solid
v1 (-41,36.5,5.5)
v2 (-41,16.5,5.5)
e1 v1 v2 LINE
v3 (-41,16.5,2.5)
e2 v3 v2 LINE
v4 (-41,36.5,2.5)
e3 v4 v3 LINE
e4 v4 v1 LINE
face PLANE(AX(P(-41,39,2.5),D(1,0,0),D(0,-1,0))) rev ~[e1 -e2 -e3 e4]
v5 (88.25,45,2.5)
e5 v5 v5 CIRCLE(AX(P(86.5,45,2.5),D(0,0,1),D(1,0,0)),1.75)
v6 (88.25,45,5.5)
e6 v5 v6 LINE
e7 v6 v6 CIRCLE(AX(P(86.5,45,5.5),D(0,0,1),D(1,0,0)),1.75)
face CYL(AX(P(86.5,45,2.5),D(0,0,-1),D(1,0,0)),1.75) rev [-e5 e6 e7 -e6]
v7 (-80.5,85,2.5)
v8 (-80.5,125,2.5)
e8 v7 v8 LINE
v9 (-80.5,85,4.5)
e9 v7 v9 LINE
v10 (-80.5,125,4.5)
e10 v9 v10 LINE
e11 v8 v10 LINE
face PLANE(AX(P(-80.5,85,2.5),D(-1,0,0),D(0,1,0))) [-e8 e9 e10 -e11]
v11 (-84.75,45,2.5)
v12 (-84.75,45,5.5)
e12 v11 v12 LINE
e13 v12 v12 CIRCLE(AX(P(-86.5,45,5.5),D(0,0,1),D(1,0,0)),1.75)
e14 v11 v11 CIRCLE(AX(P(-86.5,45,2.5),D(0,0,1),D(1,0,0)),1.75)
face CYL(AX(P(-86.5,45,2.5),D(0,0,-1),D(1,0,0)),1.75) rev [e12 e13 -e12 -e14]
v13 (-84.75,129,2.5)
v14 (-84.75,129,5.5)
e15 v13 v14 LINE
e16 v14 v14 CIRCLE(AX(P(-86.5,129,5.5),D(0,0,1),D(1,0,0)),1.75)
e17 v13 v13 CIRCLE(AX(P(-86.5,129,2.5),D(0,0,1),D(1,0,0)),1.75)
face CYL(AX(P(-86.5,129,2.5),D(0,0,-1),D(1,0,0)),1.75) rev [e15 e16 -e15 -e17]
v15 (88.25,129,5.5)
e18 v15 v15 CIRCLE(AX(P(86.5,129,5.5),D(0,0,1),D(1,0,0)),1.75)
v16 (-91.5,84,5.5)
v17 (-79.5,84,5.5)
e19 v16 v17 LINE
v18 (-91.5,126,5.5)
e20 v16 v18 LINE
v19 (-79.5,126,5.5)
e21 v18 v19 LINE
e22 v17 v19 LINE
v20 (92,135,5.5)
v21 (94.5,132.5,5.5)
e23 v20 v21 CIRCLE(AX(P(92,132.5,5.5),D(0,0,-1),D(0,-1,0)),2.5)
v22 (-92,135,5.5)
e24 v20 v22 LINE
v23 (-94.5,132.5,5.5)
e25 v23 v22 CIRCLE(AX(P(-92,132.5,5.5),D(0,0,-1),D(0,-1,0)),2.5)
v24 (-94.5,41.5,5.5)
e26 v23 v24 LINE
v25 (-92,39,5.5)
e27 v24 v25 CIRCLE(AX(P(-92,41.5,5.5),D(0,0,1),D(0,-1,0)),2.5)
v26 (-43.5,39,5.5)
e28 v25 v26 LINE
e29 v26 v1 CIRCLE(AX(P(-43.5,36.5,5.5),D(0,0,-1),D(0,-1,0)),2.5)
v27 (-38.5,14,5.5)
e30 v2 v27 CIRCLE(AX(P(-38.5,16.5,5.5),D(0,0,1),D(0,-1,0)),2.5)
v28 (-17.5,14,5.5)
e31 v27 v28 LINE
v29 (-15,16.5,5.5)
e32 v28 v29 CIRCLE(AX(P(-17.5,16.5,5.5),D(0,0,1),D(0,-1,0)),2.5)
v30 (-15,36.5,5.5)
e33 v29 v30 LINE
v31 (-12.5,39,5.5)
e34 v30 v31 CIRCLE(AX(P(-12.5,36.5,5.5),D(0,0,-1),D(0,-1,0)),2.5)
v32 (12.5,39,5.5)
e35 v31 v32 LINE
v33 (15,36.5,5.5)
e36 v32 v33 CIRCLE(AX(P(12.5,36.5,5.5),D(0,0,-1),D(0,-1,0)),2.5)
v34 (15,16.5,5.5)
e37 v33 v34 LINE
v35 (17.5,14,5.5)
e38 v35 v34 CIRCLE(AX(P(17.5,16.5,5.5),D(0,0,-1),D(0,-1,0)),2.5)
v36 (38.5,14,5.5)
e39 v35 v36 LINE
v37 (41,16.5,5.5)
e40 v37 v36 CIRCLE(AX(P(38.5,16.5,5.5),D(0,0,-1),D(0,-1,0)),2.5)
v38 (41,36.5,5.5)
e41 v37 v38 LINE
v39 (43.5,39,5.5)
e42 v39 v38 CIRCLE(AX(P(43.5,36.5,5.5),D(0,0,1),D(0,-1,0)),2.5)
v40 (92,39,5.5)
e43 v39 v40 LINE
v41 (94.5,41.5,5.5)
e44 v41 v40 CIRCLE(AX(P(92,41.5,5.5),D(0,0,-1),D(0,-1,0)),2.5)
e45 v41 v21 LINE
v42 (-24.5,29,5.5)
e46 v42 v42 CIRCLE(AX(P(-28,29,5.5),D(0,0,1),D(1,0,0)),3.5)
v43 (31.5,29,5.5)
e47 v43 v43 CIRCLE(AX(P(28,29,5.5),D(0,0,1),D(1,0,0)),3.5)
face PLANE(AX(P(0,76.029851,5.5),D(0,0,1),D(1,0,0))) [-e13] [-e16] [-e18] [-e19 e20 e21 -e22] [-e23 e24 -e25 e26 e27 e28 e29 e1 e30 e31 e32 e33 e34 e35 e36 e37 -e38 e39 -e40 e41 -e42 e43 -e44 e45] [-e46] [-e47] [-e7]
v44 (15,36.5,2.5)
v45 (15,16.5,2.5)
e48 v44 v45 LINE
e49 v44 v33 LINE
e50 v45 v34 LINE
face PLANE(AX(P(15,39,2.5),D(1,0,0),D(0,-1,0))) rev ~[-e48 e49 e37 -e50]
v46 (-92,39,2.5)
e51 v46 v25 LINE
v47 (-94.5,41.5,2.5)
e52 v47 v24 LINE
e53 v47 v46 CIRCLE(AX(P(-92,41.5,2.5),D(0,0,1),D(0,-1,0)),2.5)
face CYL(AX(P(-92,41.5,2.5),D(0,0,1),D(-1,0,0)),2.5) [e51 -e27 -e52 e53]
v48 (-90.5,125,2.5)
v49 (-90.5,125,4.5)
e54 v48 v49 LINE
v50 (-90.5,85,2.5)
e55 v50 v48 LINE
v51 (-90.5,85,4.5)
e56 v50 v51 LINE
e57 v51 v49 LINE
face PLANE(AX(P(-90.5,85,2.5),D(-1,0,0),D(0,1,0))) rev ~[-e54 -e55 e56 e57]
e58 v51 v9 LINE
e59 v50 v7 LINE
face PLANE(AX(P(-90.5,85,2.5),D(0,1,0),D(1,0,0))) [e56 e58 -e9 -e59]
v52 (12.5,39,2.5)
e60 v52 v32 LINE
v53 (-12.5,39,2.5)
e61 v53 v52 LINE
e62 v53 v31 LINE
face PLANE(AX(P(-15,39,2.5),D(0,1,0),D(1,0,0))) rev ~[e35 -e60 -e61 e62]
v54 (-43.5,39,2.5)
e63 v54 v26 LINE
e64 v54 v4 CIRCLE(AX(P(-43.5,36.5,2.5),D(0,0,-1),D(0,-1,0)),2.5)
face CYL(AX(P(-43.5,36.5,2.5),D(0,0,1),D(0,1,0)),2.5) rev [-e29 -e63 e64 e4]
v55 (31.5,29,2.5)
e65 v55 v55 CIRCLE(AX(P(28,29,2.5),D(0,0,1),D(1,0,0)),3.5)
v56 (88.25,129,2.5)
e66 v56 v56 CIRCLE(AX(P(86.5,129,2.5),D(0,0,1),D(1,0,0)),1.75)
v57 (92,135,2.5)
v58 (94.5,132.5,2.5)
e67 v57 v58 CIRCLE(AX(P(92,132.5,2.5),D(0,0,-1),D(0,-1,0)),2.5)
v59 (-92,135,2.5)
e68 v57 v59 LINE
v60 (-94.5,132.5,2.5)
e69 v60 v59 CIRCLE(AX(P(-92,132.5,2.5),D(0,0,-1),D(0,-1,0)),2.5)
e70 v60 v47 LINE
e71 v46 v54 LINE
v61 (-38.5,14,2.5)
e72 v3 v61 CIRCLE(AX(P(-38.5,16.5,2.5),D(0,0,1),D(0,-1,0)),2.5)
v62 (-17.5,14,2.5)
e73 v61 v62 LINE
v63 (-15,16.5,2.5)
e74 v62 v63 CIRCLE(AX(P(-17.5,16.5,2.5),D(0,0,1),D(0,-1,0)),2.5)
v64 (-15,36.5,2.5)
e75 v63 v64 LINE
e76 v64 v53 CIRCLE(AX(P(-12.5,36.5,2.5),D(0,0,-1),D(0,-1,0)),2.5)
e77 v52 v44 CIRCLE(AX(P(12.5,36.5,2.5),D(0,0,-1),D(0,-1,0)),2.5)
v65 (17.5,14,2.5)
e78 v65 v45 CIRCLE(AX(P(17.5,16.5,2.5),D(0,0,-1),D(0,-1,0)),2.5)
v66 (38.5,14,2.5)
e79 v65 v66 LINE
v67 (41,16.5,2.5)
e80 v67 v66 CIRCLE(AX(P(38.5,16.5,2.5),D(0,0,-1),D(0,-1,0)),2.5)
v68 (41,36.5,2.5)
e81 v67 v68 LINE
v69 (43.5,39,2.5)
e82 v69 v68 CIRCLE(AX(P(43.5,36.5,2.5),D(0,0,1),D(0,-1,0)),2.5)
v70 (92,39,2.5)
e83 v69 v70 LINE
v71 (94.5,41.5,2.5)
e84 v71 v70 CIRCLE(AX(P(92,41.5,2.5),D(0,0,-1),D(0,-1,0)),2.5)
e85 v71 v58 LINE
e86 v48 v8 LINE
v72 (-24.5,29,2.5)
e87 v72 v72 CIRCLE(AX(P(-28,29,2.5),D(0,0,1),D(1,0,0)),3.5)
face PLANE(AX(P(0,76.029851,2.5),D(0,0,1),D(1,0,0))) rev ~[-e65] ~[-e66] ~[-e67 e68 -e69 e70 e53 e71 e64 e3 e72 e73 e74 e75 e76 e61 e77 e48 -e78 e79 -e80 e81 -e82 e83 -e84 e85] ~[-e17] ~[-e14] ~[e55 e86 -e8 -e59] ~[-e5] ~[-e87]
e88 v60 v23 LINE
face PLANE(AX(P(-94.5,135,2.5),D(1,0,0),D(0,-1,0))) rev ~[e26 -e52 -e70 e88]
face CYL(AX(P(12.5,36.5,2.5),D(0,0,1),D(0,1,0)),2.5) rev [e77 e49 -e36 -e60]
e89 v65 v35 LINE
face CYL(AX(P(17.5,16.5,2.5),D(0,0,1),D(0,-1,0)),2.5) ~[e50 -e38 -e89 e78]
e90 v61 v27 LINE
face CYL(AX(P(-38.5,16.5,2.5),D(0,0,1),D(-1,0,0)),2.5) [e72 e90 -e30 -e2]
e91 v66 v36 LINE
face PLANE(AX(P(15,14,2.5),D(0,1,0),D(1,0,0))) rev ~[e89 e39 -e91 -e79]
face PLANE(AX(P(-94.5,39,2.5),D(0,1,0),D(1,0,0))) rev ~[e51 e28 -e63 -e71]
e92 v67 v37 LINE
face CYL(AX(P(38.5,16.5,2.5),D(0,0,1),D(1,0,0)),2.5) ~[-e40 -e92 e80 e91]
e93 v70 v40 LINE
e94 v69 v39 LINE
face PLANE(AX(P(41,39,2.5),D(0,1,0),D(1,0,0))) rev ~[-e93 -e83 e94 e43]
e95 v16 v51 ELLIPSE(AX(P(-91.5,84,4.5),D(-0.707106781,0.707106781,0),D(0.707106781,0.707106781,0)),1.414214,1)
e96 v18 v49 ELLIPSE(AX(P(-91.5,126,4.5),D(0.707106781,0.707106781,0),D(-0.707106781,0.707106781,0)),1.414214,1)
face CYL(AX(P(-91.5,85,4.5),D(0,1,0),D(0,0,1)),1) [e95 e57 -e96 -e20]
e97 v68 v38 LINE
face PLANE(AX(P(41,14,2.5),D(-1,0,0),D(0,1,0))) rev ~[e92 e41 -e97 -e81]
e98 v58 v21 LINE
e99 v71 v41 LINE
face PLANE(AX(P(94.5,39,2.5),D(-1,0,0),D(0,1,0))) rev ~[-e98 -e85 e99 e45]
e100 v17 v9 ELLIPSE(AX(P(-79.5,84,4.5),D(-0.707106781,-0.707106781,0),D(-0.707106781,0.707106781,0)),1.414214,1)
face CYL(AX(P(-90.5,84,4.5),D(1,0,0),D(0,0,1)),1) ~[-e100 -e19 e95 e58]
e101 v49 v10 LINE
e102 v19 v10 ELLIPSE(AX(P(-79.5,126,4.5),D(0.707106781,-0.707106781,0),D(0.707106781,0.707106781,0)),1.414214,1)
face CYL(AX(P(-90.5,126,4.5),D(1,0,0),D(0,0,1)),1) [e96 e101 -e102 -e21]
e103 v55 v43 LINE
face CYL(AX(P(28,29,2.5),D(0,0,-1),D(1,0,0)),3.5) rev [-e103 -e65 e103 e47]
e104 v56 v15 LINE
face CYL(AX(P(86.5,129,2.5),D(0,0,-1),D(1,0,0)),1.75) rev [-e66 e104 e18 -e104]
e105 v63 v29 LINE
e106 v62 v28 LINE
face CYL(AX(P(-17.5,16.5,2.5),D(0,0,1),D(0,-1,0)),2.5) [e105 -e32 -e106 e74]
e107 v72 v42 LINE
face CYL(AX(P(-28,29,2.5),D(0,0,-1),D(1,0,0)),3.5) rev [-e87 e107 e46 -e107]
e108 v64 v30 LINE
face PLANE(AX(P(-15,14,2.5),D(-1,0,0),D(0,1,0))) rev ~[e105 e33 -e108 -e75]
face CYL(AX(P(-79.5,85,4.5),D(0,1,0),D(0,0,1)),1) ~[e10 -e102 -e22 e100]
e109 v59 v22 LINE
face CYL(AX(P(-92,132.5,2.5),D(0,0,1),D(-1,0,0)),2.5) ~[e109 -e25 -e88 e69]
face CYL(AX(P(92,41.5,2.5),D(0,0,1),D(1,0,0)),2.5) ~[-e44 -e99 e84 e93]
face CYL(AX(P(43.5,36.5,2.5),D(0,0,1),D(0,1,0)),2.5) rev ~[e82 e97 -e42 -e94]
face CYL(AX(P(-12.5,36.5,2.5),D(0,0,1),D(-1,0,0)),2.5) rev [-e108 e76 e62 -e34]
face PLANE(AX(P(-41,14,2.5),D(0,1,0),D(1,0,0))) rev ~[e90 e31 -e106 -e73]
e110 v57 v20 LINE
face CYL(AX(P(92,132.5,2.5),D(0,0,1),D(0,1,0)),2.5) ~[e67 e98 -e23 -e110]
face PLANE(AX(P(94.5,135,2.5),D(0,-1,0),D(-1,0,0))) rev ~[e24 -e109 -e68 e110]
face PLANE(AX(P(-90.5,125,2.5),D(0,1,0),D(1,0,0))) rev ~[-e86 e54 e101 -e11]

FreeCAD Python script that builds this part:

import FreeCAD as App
import Part
import Sketcher

V = App.Vector
Q = App.Units.Quantity


def edges_at(feature, points):
    """Names of the edges that pass closest to the given points."""
    edges = feature.Shape.Edges
    near = lambda p: min(range(len(edges)), key=lambda i: edges[i].distToShape(Part.Vertex(*p))[0])
    return sorted({f"Edge{near(p) + 1}" for p in points})


def add_polygon(sketch, points):
    """Adds a closed chain of lines whose ends are joined by coincident constraints."""
    first, n = sketch.GeometryCount, len(points)
    for a, b in zip(points, points[1:] + points[:1]):
        sketch.addGeometry(Part.LineSegment(App.Vector(*a, 0), App.Vector(*b, 0)), False)
    for i in range(n):
        sketch.addConstraint(Sketcher.Constraint("Coincident", first + i, 2, first + (i + 1) % n, 1))

doc = App.newDocument("Part")
params = doc.addObject("Spreadsheet::Sheet", "Params")
for row, (alias, value) in enumerate([
    ("sketch1_diameter", "7 mm"),
    ("sketch1_diameter2", "3.5 mm"),
    ("sketch1_width", "26 mm"),
    ("sketch1_width2", "30 mm"),
    ("sketch1_width3", "189 mm"),
    ("pad1_length", "3 mm"),
    ("fillet_radius", "2.5 mm"),
    ("fillet2_radius", "1 mm"),
], start=1):
    params.set(f"A{row}", alias)
    params.set(f"B{row}", "=" + value)
    params.setAlias(f"B{row}", alias)

body = doc.addObject("PartDesign::Body", "Body")

# Sketch on XY plane
sketch1 = body.newObject("Sketcher::SketchObject", "Sketch")
sketch1.AttachmentSupport = (doc.getObject("XY_Plane"), [""])
sketch1.MapMode = "FlatFace"
add_polygon(sketch1, [(-94.5, 48), (-94.5, -48), (-41, -48), (-41, -73), (-15, -73), (-15, -48), (15, -48), (15, -73), (41, -73), (41, -48), (94.5, -48), (94.5, 48)])  # lines 0-11
sketch1.addGeometry(Part.Circle(V(-86.5, -42, 0), V(0, 0, 1), 1.8), False)  # 12
sketch1.addGeometry(Part.Circle(V(-28, -58, 0), V(0, 0, 1), 3.5), False)  # 13
sketch1.addGeometry(Part.Circle(V(28, -58, 0), V(0, 0, 1), 3.5), False)  # 14
sketch1.addGeometry(Part.Circle(V(86.5, -42, 0), V(0, 0, 1), 1.8), False)  # 15
add_polygon(sketch1, [(-80.5, -2), (-90.5, -2), (-90.5, 38), (-80.5, 38)])  # lines 16-19
sketch1.addGeometry(Part.Circle(V(-86.5, 42, 0), V(0, 0, 1), 1.8), False)  # 20
sketch1.addGeometry(Part.Circle(V(86.5, 42, 0), V(0, 0, 1), 1.8), False)  # 21
sketch1.addConstraint(Sketcher.Constraint("Vertical", 0))
sketch1.addConstraint(Sketcher.Constraint("Horizontal", 1))
sketch1.addConstraint(Sketcher.Constraint("Vertical", 2))
sketch1.addConstraint(Sketcher.Constraint("Horizontal", 3))
sketch1.addConstraint(Sketcher.Constraint("Vertical", 4))
sketch1.addConstraint(Sketcher.Constraint("Horizontal", 5))
sketch1.addConstraint(Sketcher.Constraint("Vertical", 6))
sketch1.addConstraint(Sketcher.Constraint("Horizontal", 7))
sketch1.addConstraint(Sketcher.Constraint("Vertical", 8))
sketch1.addConstraint(Sketcher.Constraint("Horizontal", 9))
sketch1.addConstraint(Sketcher.Constraint("Vertical", 10))
sketch1.addConstraint(Sketcher.Constraint("Horizontal", 11))
sketch1.addConstraint(Sketcher.Constraint("Horizontal", 16))
sketch1.addConstraint(Sketcher.Constraint("Vertical", 17))
sketch1.addConstraint(Sketcher.Constraint("Horizontal", 18))
sketch1.addConstraint(Sketcher.Constraint("Vertical", 19))
sketch1.addConstraint(Sketcher.Constraint("Equal", 13, 14))
sketch1.addConstraint(Sketcher.Constraint("Equal", 12, 15))
sketch1.addConstraint(Sketcher.Constraint("Equal", 15, 20))
sketch1.addConstraint(Sketcher.Constraint("Equal", 20, 21))
sketch1.addConstraint(Sketcher.Constraint("Symmetric", 15, 3, 20, 3, -1, 1))
sketch1.addConstraint(Sketcher.Constraint("Symmetric", 12, 3, 21, 3, -1, 1))
sketch1.addConstraint(Sketcher.Constraint("Symmetric", 0, 2, 10, 2, -1, 1))
sketch1.addConstraint(Sketcher.Constraint("Symmetric", 13, 3, 14, 3, -2))
sketch1.addConstraint(Sketcher.Constraint("Symmetric", 12, 3, 15, 3, -2))
sketch1.addConstraint(Sketcher.Constraint("Symmetric", 3, 2, 6, 2, -2))
sketch1.addConstraint(Sketcher.Constraint("Symmetric", 1, 2, 8, 2, -2))
sketch1.addConstraint(Sketcher.Constraint("Horizontal", 1, 2, 4, 2))
sketch1.addConstraint(Sketcher.Constraint("Diameter", 13, Q("7 mm")))
sketch1.addConstraint(Sketcher.Constraint("Diameter", 12, Q("3.5 mm")))
sketch1.addConstraint(Sketcher.Constraint("DistanceX", 3, 1, 3, 2, Q("26 mm")))
sketch1.addConstraint(Sketcher.Constraint("DistanceX", 5, 1, 5, 2, Q("30 mm")))
sketch1.addConstraint(Sketcher.Constraint("DistanceX", 11, 2, 11, 1, Q("189 mm")))
sketch1.addConstraint(Sketcher.Constraint("DistanceX", 16, 2, 16, 1, Q("10 mm")))
sketch1.addConstraint(Sketcher.Constraint("DistanceY", 0, 2, 0, 1, Q("96 mm")))
sketch1.addConstraint(Sketcher.Constraint("DistanceY", 2, 2, 2, 1, Q("25 mm")))
sketch1.addConstraint(Sketcher.Constraint("DistanceY", 17, 1, 17, 2, Q("40 mm")))
sketch1.addConstraint(Sketcher.Constraint("DistanceY", 12, 3, -1, 1, Q("42 mm")))
sketch1.addConstraint(Sketcher.Constraint("DistanceX", 13, 3, -1, 1, Q("28 mm")))
sketch1.addConstraint(Sketcher.Constraint("DistanceY", 13, 3, -1, 1, Q("58 mm")))
sketch1.addConstraint(Sketcher.Constraint("DistanceY", 16, 2, -1, 1, Q("2 mm")))
sketch1.addConstraint(Sketcher.Constraint("DistanceX", 12, 3, 15, 3, Q("173 mm")))
sketch1.addConstraint(Sketcher.Constraint("DistanceX", 16, 2, 12, 3, Q("4 mm")))
sketch1.setExpression("Constraints[44]", "Params.sketch1_diameter")
sketch1.setExpression("Constraints[45]", "Params.sketch1_diameter2")
sketch1.setExpression("Constraints[46]", "Params.sketch1_width")
sketch1.setExpression("Constraints[47]", "Params.sketch1_width2")
sketch1.setExpression("Constraints[48]", "Params.sketch1_width3")
pad1 = body.newObject("PartDesign::Pad", "Pad")
pad1.Profile = sketch1
pad1.setExpression("Length", "Params.pad1_length")
doc.recompute()

fillet = body.newObject("PartDesign::Fillet", "Fillet")
fillet.Base = (pad1, edges_at(pad1, [
    (94.5, -48, 1.5),
    (41, -48, 1.5),
    (41, -73, 1.5),
    (94.5, 48, 1.5),
    (15, -48, 1.5),
    (15, -73, 1.5),
    (-15, -48, 1.5),
    (-15, -73, 1.5),
    (-41, -73, 1.5),
    (-41, -48, 1.5),
    (-94.5, -48, 1.5),
    (-94.5, 48, 1.5),
]))
fillet.setExpression("Radius", "Params.fillet_radius")
doc.recompute()

fillet2 = body.newObject("PartDesign::Fillet", "Fillet001")
fillet2.Base = (fillet, edges_at(fillet, [
    (-90.5, 18, 3),
    (-85.5, 38, 3),
    (-80.5, 18, 3),
    (-85.5, -2, 3),
]))
fillet2.setExpression("Radius", "Params.fillet2_radius")
body2 = doc.addObject("PartDesign::Body", "Body001")
doc.recompute()

body.Placement = App.Placement(V(0, 87, 2.5), App.Rotation(V(0, 0, 1), 0))
boolean = body2.newObject("PartDesign::Boolean", "Boolean")
boolean.Type = "Fuse"
boolean.addObjects([body])

doc.recompute()
